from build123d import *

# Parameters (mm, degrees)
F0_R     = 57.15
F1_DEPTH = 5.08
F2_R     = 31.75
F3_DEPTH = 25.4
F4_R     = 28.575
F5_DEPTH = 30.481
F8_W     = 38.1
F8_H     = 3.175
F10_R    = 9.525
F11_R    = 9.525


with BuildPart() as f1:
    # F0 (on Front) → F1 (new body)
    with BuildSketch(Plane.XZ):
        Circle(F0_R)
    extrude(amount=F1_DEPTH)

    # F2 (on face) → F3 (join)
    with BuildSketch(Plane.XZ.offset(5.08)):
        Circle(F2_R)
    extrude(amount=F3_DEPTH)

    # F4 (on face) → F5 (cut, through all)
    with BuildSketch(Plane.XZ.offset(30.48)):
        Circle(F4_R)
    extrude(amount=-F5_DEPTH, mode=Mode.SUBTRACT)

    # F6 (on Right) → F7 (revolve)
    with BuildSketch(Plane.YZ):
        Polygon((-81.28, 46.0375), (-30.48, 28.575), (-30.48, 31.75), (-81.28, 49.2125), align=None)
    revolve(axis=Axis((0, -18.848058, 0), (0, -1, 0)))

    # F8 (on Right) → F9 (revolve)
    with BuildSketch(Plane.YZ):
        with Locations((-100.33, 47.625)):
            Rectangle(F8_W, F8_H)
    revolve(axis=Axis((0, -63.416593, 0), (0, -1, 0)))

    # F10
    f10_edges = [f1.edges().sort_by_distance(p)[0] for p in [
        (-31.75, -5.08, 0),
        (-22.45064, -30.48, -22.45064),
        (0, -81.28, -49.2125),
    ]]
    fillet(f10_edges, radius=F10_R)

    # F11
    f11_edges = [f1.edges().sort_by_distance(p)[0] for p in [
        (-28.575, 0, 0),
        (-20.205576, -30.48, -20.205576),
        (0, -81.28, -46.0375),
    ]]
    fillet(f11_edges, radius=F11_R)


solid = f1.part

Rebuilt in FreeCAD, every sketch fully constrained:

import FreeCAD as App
import Part
import Sketcher

V = App.Vector
Q = App.Units.Quantity


def edges_at(feature, points):
    """Names of the edges that pass closest to the given points."""
    edges = feature.Shape.Edges
    near = lambda p: min(range(len(edges)), key=lambda i: edges[i].distToShape(Part.Vertex(*p))[0])
    return sorted({f"Edge{near(p) + 1}" for p in points})

doc = App.newDocument("Part")
body = doc.addObject("PartDesign::Body", "Body")

# Sketch on XZ plane
sketch1 = body.newObject("Sketcher::SketchObject", "Sketch")
sketch1.AttachmentSupport = (doc.getObject("XZ_Plane"), [""])
sketch1.MapMode = "FlatFace"
sketch1.addGeometry(Part.Circle(V(0, 0, 0), V(0, 0, 1), 57), False)
sketch1.addConstraint(Sketcher.Constraint("Coincident", 0, 3, -1, 1))
sketch1.addConstraint(Sketcher.Constraint("Diameter", 0, Q("4.5 in")))
pad1 = body.newObject("PartDesign::Pad", "Pad")
pad1.Profile = sketch1
pad1.Length = Q("0.2 in")

# Sketch on XZ plane
sketch2 = body.newObject("Sketcher::SketchObject", "Sketch001")
sketch2.AttachmentSupport = (doc.getObject("XZ_Plane"), [""])
sketch2.MapMode = "FlatFace"
sketch2.AttachmentOffset = App.Placement(V(0, 0, 0.2 * 25.4), App.Rotation())
sketch2.addGeometry(Part.Circle(V(0, 0, 0), V(0, 0, 1), 32), False)
sketch2.addConstraint(Sketcher.Constraint("Coincident", 0, 3, -1, 1))
sketch2.addConstraint(Sketcher.Constraint("Diameter", 0, Q("2.5 in")))
pad2 = body.newObject("PartDesign::Pad", "Pad001")
pad2.Profile = sketch2
pad2.Length = Q("1 in")

# Sketch on XZ plane
sketch3 = body.newObject("Sketcher::SketchObject", "Sketch002")
sketch3.AttachmentSupport = (doc.getObject("XZ_Plane"), [""])
sketch3.MapMode = "FlatFace"
sketch3.AttachmentOffset = App.Placement(V(0, 0, 1.2 * 25.4), App.Rotation())
sketch3.addGeometry(Part.Circle(V(0, 0, 0), V(0, 0, 1), 29), False)
sketch3.addConstraint(Sketcher.Constraint("Coincident", 0, 3, -1, 1))
sketch3.addConstraint(Sketcher.Constraint("Diameter", 0, Q("2.25 in")))
pocket1 = body.newObject("PartDesign::Pocket", "Pocket")
pocket1.Profile = sketch3
pocket1.Type = "ThroughAll"

# Sketch on YZ plane
sketch4 = body.newObject("Sketcher::SketchObject", "Sketch003")
sketch4.AttachmentSupport = (doc.getObject("YZ_Plane"), [""])
sketch4.MapMode = "FlatFace"
sketch4.addGeometry(Part.LineSegment(V(-81.3, 46, 0), V(-30.5, 28.6, 0)), False)
sketch4.addGeometry(Part.LineSegment(V(-30.5, 28.6, 0), V(-30.5, 31.8, 0)), False)
sketch4.addGeometry(Part.LineSegment(V(-30.5, 31.8, 0), V(-81.3, 49.2, 0)), False)
sketch4.addGeometry(Part.LineSegment(V(-81.3, 49.2, 0), V(-81.3, 46, 0)), False)
sketch4.addConstraint(Sketcher.Constraint("Coincident", 0, 2, 1, 1))
sketch4.addConstraint(Sketcher.Constraint("Coincident", 1, 2, 2, 1))
sketch4.addConstraint(Sketcher.Constraint("Coincident", 2, 2, 3, 1))
sketch4.addConstraint(Sketcher.Constraint("Coincident", 3, 2, 0, 1))
sketch4.addConstraint(Sketcher.Constraint("Vertical", 1))
sketch4.addConstraint(Sketcher.Constraint("Vertical", 3))
sketch4.addConstraint(Sketcher.Constraint("Parallel", 0, 2))
sketch4.addConstraint(Sketcher.Constraint("DistanceX", 2, 2, 1, 2, Q("2 in")))
sketch4.addConstraint(Sketcher.Constraint("DistanceX", 0, 2, -1, 1, Q("1.2 in")))
sketch4.addConstraint(Sketcher.Constraint("DistanceY", 1, 1, 1, 2, Q("0.125 in")))
sketch4.addConstraint(Sketcher.Constraint("DistanceY", -1, 1, 1, 2, Q("1.25 in")))
sketch4.addConstraint(Sketcher.Constraint("DistanceY", -1, 1, 2, 2, Q("1.9375 in")))
revolution = body.newObject("PartDesign::Revolution", "Revolution")
revolution.Profile = sketch4
revolution.ReferenceAxis = (sketch4, ["H_Axis"])
revolution.Angle = 360

# Sketch on YZ plane
sketch5 = body.newObject("Sketcher::SketchObject", "Sketch004")
sketch5.AttachmentSupport = (doc.getObject("YZ_Plane"), [""])
sketch5.MapMode = "FlatFace"
sketch5.addGeometry(Part.LineSegment(V(-119.4, 49.2, 0), V(-119.4, 46, 0)), False)
sketch5.addGeometry(Part.LineSegment(V(-119.4, 46, 0), V(-81.3, 46, 0)), False)
sketch5.addGeometry(Part.LineSegment(V(-81.3, 46, 0), V(-81.3, 49.2, 0)), False)
sketch5.addGeometry(Part.LineSegment(V(-81.3, 49.2, 0), V(-119.4, 49.2, 0)), False)
sketch5.addConstraint(Sketcher.Constraint("Coincident", 0, 2, 1, 1))
sketch5.addConstraint(Sketcher.Constraint("Coincident", 1, 2, 2, 1))
sketch5.addConstraint(Sketcher.Constraint("Coincident", 2, 2, 3, 1))
sketch5.addConstraint(Sketcher.Constraint("Coincident", 3, 2, 0, 1))
sketch5.addConstraint(Sketcher.Constraint("Vertical", 0))
sketch5.addConstraint(Sketcher.Constraint("Horizontal", 1))
sketch5.addConstraint(Sketcher.Constraint("Vertical", 2))
sketch5.addConstraint(Sketcher.Constraint("Horizontal", 3))
sketch5.addConstraint(Sketcher.Constraint("DistanceX", 1, 1, 1, 2, Q("1.5 in")))
sketch5.addConstraint(Sketcher.Constraint("DistanceX", 0, 2, -1, 1, Q("4.7 in")))
sketch5.addConstraint(Sketcher.Constraint("DistanceY", 0, 2, 0, 1, Q("0.125 in")))
sketch5.addConstraint(Sketcher.Constraint("DistanceY", -1, 1, 0, 2, Q("1.8125 in")))
revolution2 = body.newObject("PartDesign::Revolution", "Revolution001")
revolution2.Profile = sketch5
revolution2.ReferenceAxis = (sketch5, ["H_Axis"])
revolution2.Angle = 360
doc.recompute()

fillet = body.newObject("PartDesign::Fillet", "Fillet")
fillet.Base = (revolution2, edges_at(revolution2, [(-31.75, -5.08, 0), (-22.451, -30.48, -22.451), (0, -81.28, -49.212)]))
fillet.Radius = Q("0.375 in")
doc.recompute()

fillet2 = body.newObject("PartDesign::Fillet", "Fillet001")
fillet2.Base = (fillet, edges_at(fillet, [(-28.575, 0, 0), (-20.206, -30.48, -20.206), (0, -81.28, -46.038)]))
fillet2.Radius = Q("0.375 in")

doc.recompute()
